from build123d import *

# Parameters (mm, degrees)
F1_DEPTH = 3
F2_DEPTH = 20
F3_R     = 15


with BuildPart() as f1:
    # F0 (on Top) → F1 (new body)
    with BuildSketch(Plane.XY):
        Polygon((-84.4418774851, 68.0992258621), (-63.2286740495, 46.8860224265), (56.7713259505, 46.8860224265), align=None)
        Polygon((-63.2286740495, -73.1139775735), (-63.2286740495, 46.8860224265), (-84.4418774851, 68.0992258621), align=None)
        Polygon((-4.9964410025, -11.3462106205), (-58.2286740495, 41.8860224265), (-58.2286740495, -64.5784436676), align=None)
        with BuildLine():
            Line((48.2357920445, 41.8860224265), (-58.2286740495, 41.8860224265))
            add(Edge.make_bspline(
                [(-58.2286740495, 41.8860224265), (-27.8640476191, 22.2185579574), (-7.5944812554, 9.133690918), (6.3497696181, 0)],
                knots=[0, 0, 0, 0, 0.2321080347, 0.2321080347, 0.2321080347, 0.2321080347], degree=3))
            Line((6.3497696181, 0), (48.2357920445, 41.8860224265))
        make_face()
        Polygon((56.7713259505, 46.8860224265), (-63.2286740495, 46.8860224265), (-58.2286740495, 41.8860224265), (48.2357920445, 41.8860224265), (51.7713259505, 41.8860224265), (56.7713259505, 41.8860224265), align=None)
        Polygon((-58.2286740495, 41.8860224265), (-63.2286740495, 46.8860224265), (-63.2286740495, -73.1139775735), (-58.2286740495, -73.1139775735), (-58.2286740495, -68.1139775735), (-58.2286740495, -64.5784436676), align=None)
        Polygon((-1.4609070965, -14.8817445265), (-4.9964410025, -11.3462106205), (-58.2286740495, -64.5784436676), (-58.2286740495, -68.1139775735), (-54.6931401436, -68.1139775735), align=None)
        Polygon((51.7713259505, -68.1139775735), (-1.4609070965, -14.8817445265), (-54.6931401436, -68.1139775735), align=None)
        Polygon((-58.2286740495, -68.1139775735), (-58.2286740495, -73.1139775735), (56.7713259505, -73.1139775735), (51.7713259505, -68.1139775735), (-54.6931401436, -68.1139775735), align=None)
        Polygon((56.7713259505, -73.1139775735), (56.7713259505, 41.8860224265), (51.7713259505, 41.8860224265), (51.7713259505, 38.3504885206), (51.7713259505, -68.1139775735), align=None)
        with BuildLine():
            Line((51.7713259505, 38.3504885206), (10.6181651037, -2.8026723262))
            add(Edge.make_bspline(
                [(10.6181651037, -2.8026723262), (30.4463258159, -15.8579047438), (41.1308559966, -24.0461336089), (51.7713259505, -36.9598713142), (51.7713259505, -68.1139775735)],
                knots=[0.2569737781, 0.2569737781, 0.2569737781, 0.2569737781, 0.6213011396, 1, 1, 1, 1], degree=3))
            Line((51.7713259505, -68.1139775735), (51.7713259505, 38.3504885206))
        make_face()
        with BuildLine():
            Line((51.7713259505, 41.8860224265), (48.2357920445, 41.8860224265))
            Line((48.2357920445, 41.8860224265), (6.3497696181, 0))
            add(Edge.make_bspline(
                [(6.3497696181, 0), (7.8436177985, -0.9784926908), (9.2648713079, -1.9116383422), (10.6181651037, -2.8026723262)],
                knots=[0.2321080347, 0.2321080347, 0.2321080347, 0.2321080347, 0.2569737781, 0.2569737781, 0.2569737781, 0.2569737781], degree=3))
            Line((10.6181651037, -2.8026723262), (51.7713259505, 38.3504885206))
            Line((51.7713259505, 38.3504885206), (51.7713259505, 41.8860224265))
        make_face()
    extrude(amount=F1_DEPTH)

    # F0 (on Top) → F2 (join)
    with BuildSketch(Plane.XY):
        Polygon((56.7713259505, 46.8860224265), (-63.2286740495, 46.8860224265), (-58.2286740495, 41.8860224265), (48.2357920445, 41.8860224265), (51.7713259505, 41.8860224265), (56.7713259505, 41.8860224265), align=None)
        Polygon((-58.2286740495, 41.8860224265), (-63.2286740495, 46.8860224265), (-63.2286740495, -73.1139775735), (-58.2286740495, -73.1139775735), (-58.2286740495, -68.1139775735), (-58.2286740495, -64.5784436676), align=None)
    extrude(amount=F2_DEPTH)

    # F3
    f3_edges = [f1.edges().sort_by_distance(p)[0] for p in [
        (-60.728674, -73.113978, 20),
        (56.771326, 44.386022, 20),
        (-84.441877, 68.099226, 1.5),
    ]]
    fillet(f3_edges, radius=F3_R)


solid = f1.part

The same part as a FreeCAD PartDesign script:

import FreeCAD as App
import Part
import Sketcher

V = App.Vector


def edges_at(feature, points):
    """Names of the edges that pass closest to the given points."""
    edges = feature.Shape.Edges
    near = lambda p: min(range(len(edges)), key=lambda i: edges[i].distToShape(Part.Vertex(*p))[0])
    return sorted({f"Edge{near(p) + 1}" for p in points})


def add_polygon(sketch, points):
    """Adds a closed chain of lines whose ends are joined by coincident constraints."""
    first, n = sketch.GeometryCount, len(points)
    for a, b in zip(points, points[1:] + points[:1]):
        sketch.addGeometry(Part.LineSegment(App.Vector(*a, 0), App.Vector(*b, 0)), False)
    for i in range(n):
        sketch.addConstraint(Sketcher.Constraint("Coincident", first + i, 2, first + (i + 1) % n, 1))

doc = App.newDocument("Part")
body = doc.addObject("PartDesign::Body", "Body")

# Sketch on XY plane
sketch1 = body.newObject("Sketcher::SketchObject", "Sketch")
sketch1.AttachmentSupport = (doc.getObject("XY_Plane"), [""])
sketch1.MapMode = "FlatFace"
add_polygon(sketch1, [(56.771326, 46.886022), (-84.441877, 68.099226), (-63.228674, -73.113978), (56.771326, -73.113978)])  # lines 0-3
sketch1.addGeometry(Part.LineSegment(V(51.771326, -68.113978, 0), V(-58.228674, 41.886022, 0)), False)  # 4
sketch1.addGeometry(Part.BSplineCurve([V(-58.228674, 41.886022, 0), V(-27.864048, 22.218558, 0), V(-7.594481, 9.133691, 0), V(6.34977, 0, 0)], [4, 4], [0, 0.232108035], False, 3, [1, 1, 1, 1], False), False)  # 5
sketch1.addGeometry(Part.BSplineCurve([V(6.34977, 0, 0), V(7.843618, -0.978493, 0), V(9.264871, -1.911638, 0), V(10.618165, -2.802672, 0)], [4, 4], [0.232108035, 0.256973778], False, 3, [1, 1, 1, 1], False), False)  # 6
sketch1.addGeometry(Part.BSplineCurve([V(10.618165, -2.802672, 0), V(30.446326, -15.857905, 0), V(41.130856, -24.046134, 0), V(51.771326, -36.959871, 0), V(51.771326, -68.113978, 0)], [4, 1, 4], [0.256973778, 0.62130114, 1], False, 3, [1, 1, 1, 1, 1], False), False)  # 7
sketch1.addConstraint([
    Sketcher.Constraint("Block", 5),
    Sketcher.Constraint("Block", 6),
    Sketcher.Constraint("Block", 7),
    Sketcher.Constraint("Coincident", 4, 2, 5, 1),
    Sketcher.Constraint("Coincident", 7, 2, 4, 1),
    Sketcher.Constraint("Horizontal", 2),
    Sketcher.Constraint("Vertical", 3),
    Sketcher.Constraint("Equal", 2, 3),
    Sketcher.Constraint("Equal", 0, 1),
    Sketcher.Constraint("DistanceX", 2, 1, 2, 2, 120.0),
    Sketcher.Constraint("DistanceX", 4, 2, 3, 2, 115.0),
    Sketcher.Constraint("DistanceY", 4, 2, 3, 2, 5.0),
    Sketcher.Constraint("Distance", 0, 142.79765),
])
pad1 = body.newObject("PartDesign::Pad", "Pad")
pad1.Profile = sketch1
pad1.Length = 3

# Sketch on XY plane
sketch2 = body.newObject("Sketcher::SketchObject", "Sketch001")
sketch2.AttachmentSupport = (doc.getObject("XY_Plane"), [""])
sketch2.MapMode = "FlatFace"
add_polygon(sketch2, [(57, 47), (-63, 47), (-63, -73), (-58, -73), (-58, 42), (57, 42)])  # lines 0-5
sketch2.addConstraint([
    Sketcher.Constraint("Horizontal", 0),
    Sketcher.Constraint("Vertical", 1),
    Sketcher.Constraint("Horizontal", 2),
    Sketcher.Constraint("Vertical", 3),
    Sketcher.Constraint("Horizontal", 4),
    Sketcher.Constraint("Vertical", 5),
    Sketcher.Constraint("Equal", 0, 1),
    Sketcher.Constraint("Equal", 4, 3),
    Sketcher.Constraint("DistanceX", 0, 2, 0, 1, 120.0),
    Sketcher.Constraint("DistanceX", 2, 1, 2, 2, 5.0),
    Sketcher.Constraint("DistanceX", 0, 2, -1, 1, 63.228674),
    Sketcher.Constraint("DistanceY", -1, 1, 0, 2, 46.886022),
])
pad2 = body.newObject("PartDesign::Pad", "Pad001")
pad2.Profile = sketch2
pad2.Length = 20
doc.recompute()

fillet = body.newObject("PartDesign::Fillet", "Fillet")
fillet.Base = (pad2, edges_at(pad2, [(-60.729, -73.114, 20), (56.771, 44.386, 20), (-84.442, 68.099, 1.5)]))
fillet.Radius = 15

doc.recompute()
